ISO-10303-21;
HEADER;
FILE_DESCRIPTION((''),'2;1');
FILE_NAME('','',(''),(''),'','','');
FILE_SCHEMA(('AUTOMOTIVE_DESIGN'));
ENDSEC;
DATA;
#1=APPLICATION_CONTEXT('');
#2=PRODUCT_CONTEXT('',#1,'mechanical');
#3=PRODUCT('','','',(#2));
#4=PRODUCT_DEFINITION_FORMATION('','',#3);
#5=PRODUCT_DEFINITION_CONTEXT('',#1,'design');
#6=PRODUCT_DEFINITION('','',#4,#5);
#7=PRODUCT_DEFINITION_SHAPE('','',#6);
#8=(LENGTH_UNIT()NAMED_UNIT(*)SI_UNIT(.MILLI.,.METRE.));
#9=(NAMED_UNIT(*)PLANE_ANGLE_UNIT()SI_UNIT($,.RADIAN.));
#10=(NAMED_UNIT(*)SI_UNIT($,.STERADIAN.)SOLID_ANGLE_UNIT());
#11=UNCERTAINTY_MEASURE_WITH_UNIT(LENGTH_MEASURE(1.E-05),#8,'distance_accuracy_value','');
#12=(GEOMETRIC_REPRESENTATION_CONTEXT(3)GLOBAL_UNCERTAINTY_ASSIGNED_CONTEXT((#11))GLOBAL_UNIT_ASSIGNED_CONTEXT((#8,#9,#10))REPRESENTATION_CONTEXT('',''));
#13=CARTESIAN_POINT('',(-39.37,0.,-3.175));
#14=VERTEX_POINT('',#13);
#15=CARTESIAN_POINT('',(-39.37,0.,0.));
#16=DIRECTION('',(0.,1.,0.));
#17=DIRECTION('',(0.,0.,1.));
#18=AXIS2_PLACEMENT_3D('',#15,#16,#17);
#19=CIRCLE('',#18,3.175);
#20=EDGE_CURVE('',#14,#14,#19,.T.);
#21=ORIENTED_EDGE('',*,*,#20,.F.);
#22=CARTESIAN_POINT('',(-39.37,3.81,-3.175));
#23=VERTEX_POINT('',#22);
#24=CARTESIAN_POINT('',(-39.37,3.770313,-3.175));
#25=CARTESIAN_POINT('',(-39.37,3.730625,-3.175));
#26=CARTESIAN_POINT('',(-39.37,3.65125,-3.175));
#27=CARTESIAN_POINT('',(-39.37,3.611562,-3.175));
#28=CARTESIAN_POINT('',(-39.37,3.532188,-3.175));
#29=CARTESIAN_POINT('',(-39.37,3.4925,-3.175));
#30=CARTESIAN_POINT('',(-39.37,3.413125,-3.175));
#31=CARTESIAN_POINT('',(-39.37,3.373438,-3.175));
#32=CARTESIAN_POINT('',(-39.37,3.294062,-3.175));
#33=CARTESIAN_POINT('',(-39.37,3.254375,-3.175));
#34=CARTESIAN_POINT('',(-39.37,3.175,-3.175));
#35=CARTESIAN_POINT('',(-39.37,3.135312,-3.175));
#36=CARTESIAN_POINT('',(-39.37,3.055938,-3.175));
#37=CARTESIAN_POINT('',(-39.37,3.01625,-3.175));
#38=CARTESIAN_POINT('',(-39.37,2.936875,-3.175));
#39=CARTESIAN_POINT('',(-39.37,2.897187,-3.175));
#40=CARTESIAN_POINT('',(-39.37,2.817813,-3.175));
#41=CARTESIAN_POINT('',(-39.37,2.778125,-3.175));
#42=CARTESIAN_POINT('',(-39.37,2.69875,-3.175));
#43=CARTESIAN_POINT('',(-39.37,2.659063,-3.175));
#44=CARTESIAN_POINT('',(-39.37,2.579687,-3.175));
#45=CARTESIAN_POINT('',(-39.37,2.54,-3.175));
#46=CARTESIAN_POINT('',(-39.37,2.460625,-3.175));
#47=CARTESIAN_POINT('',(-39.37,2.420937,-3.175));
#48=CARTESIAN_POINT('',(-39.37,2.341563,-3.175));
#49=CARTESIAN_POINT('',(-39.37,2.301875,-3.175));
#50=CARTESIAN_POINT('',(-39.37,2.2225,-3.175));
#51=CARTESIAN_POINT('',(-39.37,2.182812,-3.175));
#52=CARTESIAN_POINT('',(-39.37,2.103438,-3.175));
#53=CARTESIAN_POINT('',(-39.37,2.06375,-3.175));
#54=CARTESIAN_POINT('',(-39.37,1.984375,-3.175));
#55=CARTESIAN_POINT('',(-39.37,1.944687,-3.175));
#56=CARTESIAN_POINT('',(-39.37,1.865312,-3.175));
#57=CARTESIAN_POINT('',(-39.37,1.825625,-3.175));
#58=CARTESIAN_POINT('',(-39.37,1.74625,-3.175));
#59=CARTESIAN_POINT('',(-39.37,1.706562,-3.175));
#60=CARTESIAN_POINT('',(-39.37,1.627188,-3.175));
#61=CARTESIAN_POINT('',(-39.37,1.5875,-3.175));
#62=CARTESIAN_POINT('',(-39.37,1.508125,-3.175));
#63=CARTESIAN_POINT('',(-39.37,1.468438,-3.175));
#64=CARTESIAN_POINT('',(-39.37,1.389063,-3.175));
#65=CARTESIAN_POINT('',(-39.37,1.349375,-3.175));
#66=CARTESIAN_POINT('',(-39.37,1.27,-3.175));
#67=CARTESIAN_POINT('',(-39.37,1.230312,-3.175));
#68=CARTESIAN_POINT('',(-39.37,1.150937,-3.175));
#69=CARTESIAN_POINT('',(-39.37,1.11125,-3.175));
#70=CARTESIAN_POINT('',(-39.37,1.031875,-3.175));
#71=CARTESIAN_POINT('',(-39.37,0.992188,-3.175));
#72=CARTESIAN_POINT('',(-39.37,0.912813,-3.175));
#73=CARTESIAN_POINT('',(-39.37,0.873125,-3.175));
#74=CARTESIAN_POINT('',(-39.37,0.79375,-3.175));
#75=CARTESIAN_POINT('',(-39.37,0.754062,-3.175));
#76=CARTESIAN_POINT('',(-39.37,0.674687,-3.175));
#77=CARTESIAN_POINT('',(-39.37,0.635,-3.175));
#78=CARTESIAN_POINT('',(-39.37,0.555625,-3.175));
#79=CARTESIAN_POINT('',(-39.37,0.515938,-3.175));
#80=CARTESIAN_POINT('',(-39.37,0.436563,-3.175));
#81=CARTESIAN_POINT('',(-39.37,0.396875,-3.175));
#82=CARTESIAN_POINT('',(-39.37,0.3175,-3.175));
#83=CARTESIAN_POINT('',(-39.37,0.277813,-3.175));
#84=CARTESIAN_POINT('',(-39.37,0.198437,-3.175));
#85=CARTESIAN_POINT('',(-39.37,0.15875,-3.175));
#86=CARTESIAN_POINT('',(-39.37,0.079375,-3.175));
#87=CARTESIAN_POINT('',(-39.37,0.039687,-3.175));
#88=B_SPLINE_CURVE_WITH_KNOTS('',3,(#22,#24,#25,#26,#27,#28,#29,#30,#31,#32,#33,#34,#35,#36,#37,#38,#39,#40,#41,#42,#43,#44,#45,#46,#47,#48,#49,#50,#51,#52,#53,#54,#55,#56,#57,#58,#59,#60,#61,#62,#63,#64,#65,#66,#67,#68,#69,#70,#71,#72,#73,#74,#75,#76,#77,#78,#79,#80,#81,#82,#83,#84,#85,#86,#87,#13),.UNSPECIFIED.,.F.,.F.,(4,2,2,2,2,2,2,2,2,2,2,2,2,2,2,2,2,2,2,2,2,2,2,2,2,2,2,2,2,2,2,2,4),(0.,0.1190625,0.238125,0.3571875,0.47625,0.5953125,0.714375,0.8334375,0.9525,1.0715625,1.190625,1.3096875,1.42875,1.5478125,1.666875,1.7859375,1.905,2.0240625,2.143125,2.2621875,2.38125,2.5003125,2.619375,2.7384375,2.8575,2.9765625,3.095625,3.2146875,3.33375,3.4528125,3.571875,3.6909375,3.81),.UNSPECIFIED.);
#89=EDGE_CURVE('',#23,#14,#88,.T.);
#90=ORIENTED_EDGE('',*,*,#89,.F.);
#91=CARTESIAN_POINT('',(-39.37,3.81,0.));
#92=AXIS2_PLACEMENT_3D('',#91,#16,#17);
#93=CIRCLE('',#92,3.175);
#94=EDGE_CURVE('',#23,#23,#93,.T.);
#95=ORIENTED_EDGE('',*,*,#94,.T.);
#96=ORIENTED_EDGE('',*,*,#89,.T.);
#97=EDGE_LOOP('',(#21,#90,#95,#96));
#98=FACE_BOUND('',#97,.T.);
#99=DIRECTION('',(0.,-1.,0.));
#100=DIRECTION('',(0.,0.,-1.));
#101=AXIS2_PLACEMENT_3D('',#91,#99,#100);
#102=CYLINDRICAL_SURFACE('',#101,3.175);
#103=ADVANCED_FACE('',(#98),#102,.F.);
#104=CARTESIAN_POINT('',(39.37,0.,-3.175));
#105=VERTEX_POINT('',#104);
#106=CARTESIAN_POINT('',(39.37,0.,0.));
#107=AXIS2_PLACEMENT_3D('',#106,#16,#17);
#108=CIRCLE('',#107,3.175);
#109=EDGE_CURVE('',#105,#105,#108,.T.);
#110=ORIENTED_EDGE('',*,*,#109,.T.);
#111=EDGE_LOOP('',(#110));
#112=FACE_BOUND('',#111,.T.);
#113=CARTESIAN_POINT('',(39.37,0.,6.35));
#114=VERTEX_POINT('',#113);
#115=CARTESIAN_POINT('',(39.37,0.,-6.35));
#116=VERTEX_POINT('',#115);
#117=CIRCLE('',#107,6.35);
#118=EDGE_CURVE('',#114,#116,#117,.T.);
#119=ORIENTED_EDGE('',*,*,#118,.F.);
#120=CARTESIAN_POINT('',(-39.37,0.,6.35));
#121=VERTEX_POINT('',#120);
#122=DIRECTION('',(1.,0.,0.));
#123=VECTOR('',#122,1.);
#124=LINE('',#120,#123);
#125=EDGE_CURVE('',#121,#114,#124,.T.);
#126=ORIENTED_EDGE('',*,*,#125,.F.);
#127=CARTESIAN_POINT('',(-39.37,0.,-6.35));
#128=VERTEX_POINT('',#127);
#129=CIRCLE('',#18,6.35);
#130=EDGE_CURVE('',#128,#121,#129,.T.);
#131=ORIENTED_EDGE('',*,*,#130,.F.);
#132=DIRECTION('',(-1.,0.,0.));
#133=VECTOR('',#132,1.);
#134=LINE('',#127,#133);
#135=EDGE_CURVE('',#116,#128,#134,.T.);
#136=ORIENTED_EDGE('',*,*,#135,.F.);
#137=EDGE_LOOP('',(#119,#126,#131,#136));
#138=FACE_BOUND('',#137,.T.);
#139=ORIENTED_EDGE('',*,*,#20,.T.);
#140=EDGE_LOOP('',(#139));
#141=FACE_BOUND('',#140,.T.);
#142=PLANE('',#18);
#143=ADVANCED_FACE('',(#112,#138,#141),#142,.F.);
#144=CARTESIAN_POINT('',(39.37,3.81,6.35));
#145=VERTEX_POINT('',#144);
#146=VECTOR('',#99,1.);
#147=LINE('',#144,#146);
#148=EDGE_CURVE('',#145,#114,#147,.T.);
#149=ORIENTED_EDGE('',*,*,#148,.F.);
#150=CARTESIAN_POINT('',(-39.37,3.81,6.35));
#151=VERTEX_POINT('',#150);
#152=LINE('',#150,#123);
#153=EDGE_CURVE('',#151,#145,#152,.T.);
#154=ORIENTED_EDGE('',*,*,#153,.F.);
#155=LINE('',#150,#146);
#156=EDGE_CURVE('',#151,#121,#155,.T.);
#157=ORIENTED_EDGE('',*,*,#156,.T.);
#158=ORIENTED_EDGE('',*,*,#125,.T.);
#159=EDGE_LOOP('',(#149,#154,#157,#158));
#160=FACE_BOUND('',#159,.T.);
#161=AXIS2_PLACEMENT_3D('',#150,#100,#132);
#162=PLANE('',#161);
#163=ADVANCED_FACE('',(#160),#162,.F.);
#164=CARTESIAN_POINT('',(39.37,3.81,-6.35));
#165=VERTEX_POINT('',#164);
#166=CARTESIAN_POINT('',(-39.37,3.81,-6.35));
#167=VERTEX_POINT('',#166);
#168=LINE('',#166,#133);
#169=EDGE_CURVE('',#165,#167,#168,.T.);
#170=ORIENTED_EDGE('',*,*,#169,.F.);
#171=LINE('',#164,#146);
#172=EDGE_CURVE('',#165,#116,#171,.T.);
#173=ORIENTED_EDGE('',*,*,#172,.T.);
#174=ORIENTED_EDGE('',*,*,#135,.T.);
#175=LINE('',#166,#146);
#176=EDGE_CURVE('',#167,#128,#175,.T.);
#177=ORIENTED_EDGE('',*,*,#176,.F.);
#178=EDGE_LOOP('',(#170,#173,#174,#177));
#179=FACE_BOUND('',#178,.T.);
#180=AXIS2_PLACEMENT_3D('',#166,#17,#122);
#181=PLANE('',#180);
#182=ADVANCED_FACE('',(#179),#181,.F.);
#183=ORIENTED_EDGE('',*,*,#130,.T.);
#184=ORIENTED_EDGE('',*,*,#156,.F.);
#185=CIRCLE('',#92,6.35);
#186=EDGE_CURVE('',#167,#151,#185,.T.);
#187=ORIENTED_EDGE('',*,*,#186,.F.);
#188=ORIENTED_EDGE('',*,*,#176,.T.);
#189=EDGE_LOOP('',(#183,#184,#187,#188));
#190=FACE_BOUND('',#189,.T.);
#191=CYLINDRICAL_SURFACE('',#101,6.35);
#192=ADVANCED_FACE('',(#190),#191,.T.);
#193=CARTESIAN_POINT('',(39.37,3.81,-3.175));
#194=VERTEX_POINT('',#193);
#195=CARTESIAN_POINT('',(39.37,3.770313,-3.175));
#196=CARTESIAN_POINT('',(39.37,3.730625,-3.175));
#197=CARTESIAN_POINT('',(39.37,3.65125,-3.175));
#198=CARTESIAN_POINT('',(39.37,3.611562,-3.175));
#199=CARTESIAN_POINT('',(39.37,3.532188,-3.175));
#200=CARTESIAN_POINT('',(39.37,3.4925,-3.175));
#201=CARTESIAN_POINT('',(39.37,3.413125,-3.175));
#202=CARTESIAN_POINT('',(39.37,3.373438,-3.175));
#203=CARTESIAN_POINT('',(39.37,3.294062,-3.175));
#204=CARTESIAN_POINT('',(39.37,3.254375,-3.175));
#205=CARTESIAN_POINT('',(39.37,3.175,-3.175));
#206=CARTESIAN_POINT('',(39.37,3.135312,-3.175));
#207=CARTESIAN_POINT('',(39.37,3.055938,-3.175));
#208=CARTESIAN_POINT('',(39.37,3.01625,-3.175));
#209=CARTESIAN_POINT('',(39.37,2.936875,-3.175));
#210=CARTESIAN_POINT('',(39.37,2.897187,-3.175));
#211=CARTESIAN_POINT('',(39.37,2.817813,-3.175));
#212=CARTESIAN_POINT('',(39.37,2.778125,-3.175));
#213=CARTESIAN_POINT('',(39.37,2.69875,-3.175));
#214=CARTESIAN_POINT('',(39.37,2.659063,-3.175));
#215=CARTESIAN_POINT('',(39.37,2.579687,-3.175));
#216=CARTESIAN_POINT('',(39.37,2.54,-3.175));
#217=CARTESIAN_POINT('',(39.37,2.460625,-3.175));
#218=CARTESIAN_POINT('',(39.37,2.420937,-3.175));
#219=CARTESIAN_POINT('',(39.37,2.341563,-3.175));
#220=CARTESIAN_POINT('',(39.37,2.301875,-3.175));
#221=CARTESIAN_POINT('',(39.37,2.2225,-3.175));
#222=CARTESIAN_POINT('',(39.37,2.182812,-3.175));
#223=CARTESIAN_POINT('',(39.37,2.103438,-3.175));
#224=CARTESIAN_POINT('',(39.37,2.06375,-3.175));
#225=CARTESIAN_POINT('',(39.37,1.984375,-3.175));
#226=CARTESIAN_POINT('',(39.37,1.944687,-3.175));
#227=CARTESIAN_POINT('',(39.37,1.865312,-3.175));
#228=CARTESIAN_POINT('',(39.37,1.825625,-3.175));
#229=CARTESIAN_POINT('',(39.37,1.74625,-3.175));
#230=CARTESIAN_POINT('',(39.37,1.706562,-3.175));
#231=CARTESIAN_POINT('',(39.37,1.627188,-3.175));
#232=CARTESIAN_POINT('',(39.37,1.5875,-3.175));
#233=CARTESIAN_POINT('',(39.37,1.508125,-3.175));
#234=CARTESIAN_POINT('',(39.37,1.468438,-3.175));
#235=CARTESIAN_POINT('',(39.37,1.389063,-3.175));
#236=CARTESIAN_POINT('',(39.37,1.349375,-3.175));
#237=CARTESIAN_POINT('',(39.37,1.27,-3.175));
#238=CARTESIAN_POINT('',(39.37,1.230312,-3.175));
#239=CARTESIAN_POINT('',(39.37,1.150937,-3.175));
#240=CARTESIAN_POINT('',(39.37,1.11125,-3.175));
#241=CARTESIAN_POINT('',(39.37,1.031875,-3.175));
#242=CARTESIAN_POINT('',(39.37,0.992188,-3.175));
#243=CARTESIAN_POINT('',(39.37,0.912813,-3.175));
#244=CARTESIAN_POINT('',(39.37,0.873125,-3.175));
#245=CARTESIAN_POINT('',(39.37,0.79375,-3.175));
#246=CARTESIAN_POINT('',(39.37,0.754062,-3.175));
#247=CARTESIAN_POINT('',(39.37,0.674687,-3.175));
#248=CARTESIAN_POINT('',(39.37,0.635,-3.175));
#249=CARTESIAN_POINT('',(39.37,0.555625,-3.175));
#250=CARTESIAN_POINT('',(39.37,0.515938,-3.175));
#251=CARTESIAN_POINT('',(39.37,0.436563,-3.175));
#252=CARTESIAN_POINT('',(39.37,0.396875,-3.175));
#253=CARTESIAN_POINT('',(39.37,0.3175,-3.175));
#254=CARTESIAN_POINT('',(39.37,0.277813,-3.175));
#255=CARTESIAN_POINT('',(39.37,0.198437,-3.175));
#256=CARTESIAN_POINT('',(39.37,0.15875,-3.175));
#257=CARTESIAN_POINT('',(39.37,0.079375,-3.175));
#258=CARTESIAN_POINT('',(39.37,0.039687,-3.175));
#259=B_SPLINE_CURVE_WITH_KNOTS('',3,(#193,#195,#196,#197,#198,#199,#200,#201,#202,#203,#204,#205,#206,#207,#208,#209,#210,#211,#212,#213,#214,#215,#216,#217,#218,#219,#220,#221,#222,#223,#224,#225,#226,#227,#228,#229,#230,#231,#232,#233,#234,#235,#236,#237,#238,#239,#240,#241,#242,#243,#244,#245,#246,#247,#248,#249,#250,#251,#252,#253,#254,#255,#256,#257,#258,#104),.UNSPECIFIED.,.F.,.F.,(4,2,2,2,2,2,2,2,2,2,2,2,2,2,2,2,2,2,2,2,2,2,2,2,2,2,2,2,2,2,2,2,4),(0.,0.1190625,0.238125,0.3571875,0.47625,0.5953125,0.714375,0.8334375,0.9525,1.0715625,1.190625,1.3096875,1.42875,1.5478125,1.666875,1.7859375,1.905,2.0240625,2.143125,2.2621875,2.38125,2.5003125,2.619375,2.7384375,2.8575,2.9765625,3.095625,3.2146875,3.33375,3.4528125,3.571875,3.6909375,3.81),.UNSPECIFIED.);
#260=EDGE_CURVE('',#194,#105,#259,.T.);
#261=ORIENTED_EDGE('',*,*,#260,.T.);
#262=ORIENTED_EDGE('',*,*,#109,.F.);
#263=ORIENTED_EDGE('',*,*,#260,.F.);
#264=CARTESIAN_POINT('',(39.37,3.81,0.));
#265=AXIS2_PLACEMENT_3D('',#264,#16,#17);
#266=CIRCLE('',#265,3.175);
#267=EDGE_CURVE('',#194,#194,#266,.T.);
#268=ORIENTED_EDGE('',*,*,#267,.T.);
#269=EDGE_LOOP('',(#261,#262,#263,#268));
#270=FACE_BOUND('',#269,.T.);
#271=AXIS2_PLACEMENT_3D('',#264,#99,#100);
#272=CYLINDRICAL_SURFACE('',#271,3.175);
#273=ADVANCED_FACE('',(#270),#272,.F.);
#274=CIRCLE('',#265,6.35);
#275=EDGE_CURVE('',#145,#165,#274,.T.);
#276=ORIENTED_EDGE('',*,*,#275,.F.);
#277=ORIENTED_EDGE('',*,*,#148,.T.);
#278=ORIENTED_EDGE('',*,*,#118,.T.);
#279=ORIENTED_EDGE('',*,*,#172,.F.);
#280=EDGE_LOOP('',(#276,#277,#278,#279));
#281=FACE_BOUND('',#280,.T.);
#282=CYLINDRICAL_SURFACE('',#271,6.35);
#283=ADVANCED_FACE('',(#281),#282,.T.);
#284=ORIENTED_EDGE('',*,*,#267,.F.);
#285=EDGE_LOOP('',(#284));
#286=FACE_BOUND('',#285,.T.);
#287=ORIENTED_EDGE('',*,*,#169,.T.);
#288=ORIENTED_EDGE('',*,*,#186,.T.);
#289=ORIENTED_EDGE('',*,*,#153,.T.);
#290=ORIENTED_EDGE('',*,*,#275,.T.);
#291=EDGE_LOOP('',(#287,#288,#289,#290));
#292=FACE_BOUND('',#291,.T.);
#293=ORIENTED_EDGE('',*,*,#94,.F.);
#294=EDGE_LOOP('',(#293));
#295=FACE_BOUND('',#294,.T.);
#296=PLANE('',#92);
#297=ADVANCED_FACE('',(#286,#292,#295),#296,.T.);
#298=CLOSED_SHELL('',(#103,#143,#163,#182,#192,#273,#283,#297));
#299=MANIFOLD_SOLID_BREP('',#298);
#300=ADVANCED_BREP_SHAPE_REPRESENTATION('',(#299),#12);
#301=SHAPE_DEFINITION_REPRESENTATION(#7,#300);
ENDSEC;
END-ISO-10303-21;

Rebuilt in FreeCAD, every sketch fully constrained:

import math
import FreeCAD as App
import Part
import Sketcher
from FreeCAD import Vector
Q = App.Units.Quantity

doc = App.newDocument("Part")
body = doc.addObject("PartDesign::Body", "Body")

sketch1 = doc.addObject("Sketcher::SketchObject", "Sketch")
body.addObject(sketch1)
sketch1.AttachmentSupport = (doc.XZ_Plane, [""])
sketch1.MapMode = "FlatFace"
sketch1.addGeometry([
    Part.LineSegment(Vector(39.4, -6.3, 0), Vector(-39.4, -6.3, 0)),
    Part.ArcOfCircle(Part.Circle(Vector(-39.4, 0, 0), Vector(0, 0, 1), 6.3), math.radians(90), math.radians(270)),
    Part.LineSegment(Vector(-39.4, 6.3, 0), Vector(39.4, 6.3, 0)),
    Part.ArcOfCircle(Part.Circle(Vector(39.4, 0, 0), Vector(0, 0, 1), 6.3), math.radians(-90), math.radians(90)),
    Part.Circle(Vector(39.4, 0, 0), Vector(0, 0, 1), 3.2),
    Part.Circle(Vector(-39.4, 0, 0), Vector(0, 0, 1), 3.2),
], False)
sketch1.addConstraint([
    Sketcher.Constraint("Tangent", 0, 2, 1, 2),
    Sketcher.Constraint("Tangent", 1, 1, 2, 1),
    Sketcher.Constraint("Tangent", 2, 2, 3, 2),
    Sketcher.Constraint("Tangent", 3, 1, 0, 1),
    Sketcher.Constraint("Horizontal", 0),
    Sketcher.Constraint("Horizontal", 2),
    Sketcher.Constraint("Coincident", 4, 3, 3, 3),
    Sketcher.Constraint("Coincident", 5, 3, 1, 3),
    Sketcher.Constraint("Equal", 4, 5),
    Sketcher.Constraint("Symmetric", 1, 3, 3, 3, -1, 1),
    Sketcher.Constraint("Diameter", 4, Q("0.25 in")),
    Sketcher.Constraint("Radius", 1, Q("0.25 in")),
    Sketcher.Constraint("DistanceX", 0, 2, 0, 1, Q("3.1 in")),
])
pad1 = doc.addObject("PartDesign::Pad", "Pad")
body.addObject(pad1)
pad1.Profile = sketch1
pad1.Length = Q("0.15 in")
pad1.Reversed = True

doc.recompute()
